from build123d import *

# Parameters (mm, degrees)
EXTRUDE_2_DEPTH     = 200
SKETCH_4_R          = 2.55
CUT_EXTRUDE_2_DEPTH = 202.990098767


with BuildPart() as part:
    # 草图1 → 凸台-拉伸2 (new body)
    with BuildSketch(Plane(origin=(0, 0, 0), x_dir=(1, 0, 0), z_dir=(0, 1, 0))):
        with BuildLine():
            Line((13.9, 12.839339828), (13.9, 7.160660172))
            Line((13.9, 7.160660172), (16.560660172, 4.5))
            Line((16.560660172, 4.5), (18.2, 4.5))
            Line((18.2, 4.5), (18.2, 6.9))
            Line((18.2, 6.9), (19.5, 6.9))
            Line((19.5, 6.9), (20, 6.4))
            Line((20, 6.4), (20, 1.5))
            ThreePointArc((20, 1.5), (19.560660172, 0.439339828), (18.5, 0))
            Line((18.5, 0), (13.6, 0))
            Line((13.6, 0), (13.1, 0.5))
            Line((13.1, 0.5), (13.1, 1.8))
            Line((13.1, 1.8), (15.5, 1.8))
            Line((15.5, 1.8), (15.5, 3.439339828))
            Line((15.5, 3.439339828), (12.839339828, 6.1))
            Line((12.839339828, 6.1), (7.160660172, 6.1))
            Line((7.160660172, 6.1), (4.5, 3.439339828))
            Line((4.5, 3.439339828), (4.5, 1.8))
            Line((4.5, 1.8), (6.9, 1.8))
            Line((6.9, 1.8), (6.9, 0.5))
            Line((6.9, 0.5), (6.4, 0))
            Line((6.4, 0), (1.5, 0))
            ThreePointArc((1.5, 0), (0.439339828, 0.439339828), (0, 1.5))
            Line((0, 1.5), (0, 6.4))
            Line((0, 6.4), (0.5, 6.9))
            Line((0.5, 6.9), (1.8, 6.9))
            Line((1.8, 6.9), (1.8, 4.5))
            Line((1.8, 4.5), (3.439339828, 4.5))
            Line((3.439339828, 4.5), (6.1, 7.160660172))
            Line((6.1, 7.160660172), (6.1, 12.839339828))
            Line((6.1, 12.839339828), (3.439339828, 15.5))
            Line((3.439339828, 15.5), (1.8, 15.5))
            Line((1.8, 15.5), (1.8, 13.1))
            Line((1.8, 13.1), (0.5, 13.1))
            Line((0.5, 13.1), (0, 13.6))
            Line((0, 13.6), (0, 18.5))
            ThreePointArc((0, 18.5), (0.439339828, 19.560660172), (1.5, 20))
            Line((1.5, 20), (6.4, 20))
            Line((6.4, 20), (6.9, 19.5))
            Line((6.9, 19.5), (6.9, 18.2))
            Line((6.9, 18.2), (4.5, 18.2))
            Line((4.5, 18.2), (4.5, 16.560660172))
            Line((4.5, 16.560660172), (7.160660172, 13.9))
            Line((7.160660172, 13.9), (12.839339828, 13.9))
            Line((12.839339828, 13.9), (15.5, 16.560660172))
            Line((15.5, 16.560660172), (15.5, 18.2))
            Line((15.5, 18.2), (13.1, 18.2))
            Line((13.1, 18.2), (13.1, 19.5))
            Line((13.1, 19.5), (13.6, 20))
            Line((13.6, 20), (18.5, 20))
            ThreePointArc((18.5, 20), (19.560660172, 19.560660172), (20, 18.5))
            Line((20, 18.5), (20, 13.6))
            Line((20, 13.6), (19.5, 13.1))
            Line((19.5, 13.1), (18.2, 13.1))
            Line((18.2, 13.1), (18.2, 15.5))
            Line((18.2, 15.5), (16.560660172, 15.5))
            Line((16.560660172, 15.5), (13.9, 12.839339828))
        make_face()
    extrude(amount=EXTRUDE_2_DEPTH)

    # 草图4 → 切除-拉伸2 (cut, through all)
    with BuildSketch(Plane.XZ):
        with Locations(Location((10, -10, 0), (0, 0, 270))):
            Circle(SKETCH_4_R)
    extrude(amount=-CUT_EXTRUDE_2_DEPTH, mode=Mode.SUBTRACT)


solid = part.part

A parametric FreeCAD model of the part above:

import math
import FreeCAD as App
import Part
import Sketcher

doc = App.newDocument("Part")
body = doc.addObject("PartDesign::Body", "Body")

# Sketch on XZ plane
sketch1 = body.newObject("Sketcher::SketchObject", "Sketch")
sketch1.AttachmentSupport = (doc.getObject("XZ_Plane"), [""])
sketch1.MapMode = "FlatFace"
sketch1.addGeometry([
    Part.LineSegment(App.Vector(13.9, -7.16066, 0), App.Vector(13.9, -12.83934, 0)),  # 0
    Part.LineSegment(App.Vector(13.9, -12.83934, 0), App.Vector(16.56066, -15.5, 0)),  # 1
    Part.LineSegment(App.Vector(16.56066, -15.5, 0), App.Vector(18.2, -15.5, 0)),  # 2
    Part.LineSegment(App.Vector(18.2, -15.5, 0), App.Vector(18.2, -13.1, 0)),  # 3
    Part.LineSegment(App.Vector(18.2, -13.1, 0), App.Vector(19.5, -13.1, 0)),  # 4
    Part.LineSegment(App.Vector(19.5, -13.1, 0), App.Vector(20, -13.6, 0)),  # 5
    Part.LineSegment(App.Vector(20, -13.6, 0), App.Vector(20, -18.5, 0)),  # 6
    Part.ArcOfCircle(Part.Circle(App.Vector(18.5, -18.5, 0), App.Vector(0, 0, 1), 1.5), math.radians(-90), math.radians(0)),  # 7
    Part.LineSegment(App.Vector(18.5, -20, 0), App.Vector(13.6, -20, 0)),  # 8
    Part.LineSegment(App.Vector(13.6, -20, 0), App.Vector(13.1, -19.5, 0)),  # 9
    Part.LineSegment(App.Vector(13.1, -19.5, 0), App.Vector(13.1, -18.2, 0)),  # 10
    Part.LineSegment(App.Vector(13.1, -18.2, 0), App.Vector(15.5, -18.2, 0)),  # 11
    Part.LineSegment(App.Vector(15.5, -18.2, 0), App.Vector(15.5, -16.56066, 0)),  # 12
    Part.LineSegment(App.Vector(15.5, -16.56066, 0), App.Vector(12.83934, -13.9, 0)),  # 13
    Part.LineSegment(App.Vector(12.83934, -13.9, 0), App.Vector(7.16066, -13.9, 0)),  # 14
    Part.LineSegment(App.Vector(7.16066, -13.9, 0), App.Vector(4.5, -16.56066, 0)),  # 15
    Part.LineSegment(App.Vector(4.5, -16.56066, 0), App.Vector(4.5, -18.2, 0)),  # 16
    Part.LineSegment(App.Vector(4.5, -18.2, 0), App.Vector(6.9, -18.2, 0)),  # 17
    Part.LineSegment(App.Vector(6.9, -18.2, 0), App.Vector(6.9, -19.5, 0)),  # 18
    Part.LineSegment(App.Vector(6.9, -19.5, 0), App.Vector(6.4, -20, 0)),  # 19
    Part.LineSegment(App.Vector(6.4, -20, 0), App.Vector(1.5, -20, 0)),  # 20
    Part.ArcOfCircle(Part.Circle(App.Vector(1.5, -18.5, 0), App.Vector(0, 0, 1), 1.5), math.radians(180), math.radians(270)),  # 21
    Part.LineSegment(App.Vector(0, -18.5, 0), App.Vector(0, -13.6, 0)),  # 22
    Part.LineSegment(App.Vector(0, -13.6, 0), App.Vector(0.5, -13.1, 0)),  # 23
    Part.LineSegment(App.Vector(0.5, -13.1, 0), App.Vector(1.8, -13.1, 0)),  # 24
    Part.LineSegment(App.Vector(1.8, -13.1, 0), App.Vector(1.8, -15.5, 0)),  # 25
    Part.LineSegment(App.Vector(1.8, -15.5, 0), App.Vector(3.43934, -15.5, 0)),  # 26
    Part.LineSegment(App.Vector(3.43934, -15.5, 0), App.Vector(6.1, -12.83934, 0)),  # 27
    Part.LineSegment(App.Vector(6.1, -12.83934, 0), App.Vector(6.1, -7.16066, 0)),  # 28
    Part.LineSegment(App.Vector(6.1, -7.16066, 0), App.Vector(3.43934, -4.5, 0)),  # 29
    Part.LineSegment(App.Vector(3.43934, -4.5, 0), App.Vector(1.8, -4.5, 0)),  # 30
    Part.LineSegment(App.Vector(1.8, -4.5, 0), App.Vector(1.8, -6.9, 0)),  # 31
    Part.LineSegment(App.Vector(1.8, -6.9, 0), App.Vector(0.5, -6.9, 0)),  # 32
    Part.LineSegment(App.Vector(0.5, -6.9, 0), App.Vector(0, -6.4, 0)),  # 33
    Part.LineSegment(App.Vector(0, -6.4, 0), App.Vector(0, -1.5, 0)),  # 34
    Part.ArcOfCircle(Part.Circle(App.Vector(1.5, -1.5, 0), App.Vector(0, 0, 1), 1.5), math.radians(90), math.radians(180)),  # 35
    Part.LineSegment(App.Vector(1.5, 0, 0), App.Vector(6.4, 0, 0)),  # 36
    Part.LineSegment(App.Vector(6.4, 0, 0), App.Vector(6.9, -0.5, 0)),  # 37
    Part.LineSegment(App.Vector(6.9, -0.5, 0), App.Vector(6.9, -1.8, 0)),  # 38
    Part.LineSegment(App.Vector(6.9, -1.8, 0), App.Vector(4.5, -1.8, 0)),  # 39
    Part.LineSegment(App.Vector(4.5, -1.8, 0), App.Vector(4.5, -3.43934, 0)),  # 40
    Part.LineSegment(App.Vector(4.5, -3.43934, 0), App.Vector(7.16066, -6.1, 0)),  # 41
    Part.LineSegment(App.Vector(7.16066, -6.1, 0), App.Vector(12.83934, -6.1, 0)),  # 42
    Part.LineSegment(App.Vector(12.83934, -6.1, 0), App.Vector(15.5, -3.43934, 0)),  # 43
    Part.LineSegment(App.Vector(15.5, -3.43934, 0), App.Vector(15.5, -1.8, 0)),  # 44
    Part.LineSegment(App.Vector(15.5, -1.8, 0), App.Vector(13.1, -1.8, 0)),  # 45
    Part.LineSegment(App.Vector(13.1, -1.8, 0), App.Vector(13.1, -0.5, 0)),  # 46
    Part.LineSegment(App.Vector(13.1, -0.5, 0), App.Vector(13.6, 0, 0)),  # 47
    Part.LineSegment(App.Vector(13.6, 0, 0), App.Vector(18.5, 0, 0)),  # 48
    Part.ArcOfCircle(Part.Circle(App.Vector(18.5, -1.5, 0), App.Vector(0, 0, 1), 1.5), math.radians(0), math.radians(90)),  # 49
    Part.LineSegment(App.Vector(20, -1.5, 0), App.Vector(20, -6.4, 0)),  # 50
    Part.LineSegment(App.Vector(20, -6.4, 0), App.Vector(19.5, -6.9, 0)),  # 51
    Part.LineSegment(App.Vector(19.5, -6.9, 0), App.Vector(18.2, -6.9, 0)),  # 52
    Part.LineSegment(App.Vector(18.2, -6.9, 0), App.Vector(18.2, -4.5, 0)),  # 53
    Part.LineSegment(App.Vector(18.2, -4.5, 0), App.Vector(16.56066, -4.5, 0)),  # 54
    Part.LineSegment(App.Vector(16.56066, -4.5, 0), App.Vector(13.9, -7.16066, 0)),  # 55
], False)
sketch1.addConstraint([
    Sketcher.Constraint("Coincident", 0, 2, 1, 1),
    Sketcher.Constraint("Coincident", 1, 2, 2, 1),
    Sketcher.Constraint("Coincident", 2, 2, 3, 1),
    Sketcher.Constraint("Coincident", 3, 2, 4, 1),
    Sketcher.Constraint("Coincident", 4, 2, 5, 1),
    Sketcher.Constraint("Coincident", 5, 2, 6, 1),
    Sketcher.Constraint("Tangent", 6, 2, 7, 2),
    Sketcher.Constraint("Tangent", 7, 1, 8, 1),
    Sketcher.Constraint("Coincident", 8, 2, 9, 1),
    Sketcher.Constraint("Coincident", 9, 2, 10, 1),
    Sketcher.Constraint("Coincident", 10, 2, 11, 1),
    Sketcher.Constraint("Coincident", 11, 2, 12, 1),
    Sketcher.Constraint("Coincident", 12, 2, 13, 1),
    Sketcher.Constraint("Coincident", 13, 2, 14, 1),
    Sketcher.Constraint("Coincident", 14, 2, 15, 1),
    Sketcher.Constraint("Coincident", 15, 2, 16, 1),
    Sketcher.Constraint("Coincident", 16, 2, 17, 1),
    Sketcher.Constraint("Coincident", 17, 2, 18, 1),
    Sketcher.Constraint("Coincident", 18, 2, 19, 1),
    Sketcher.Constraint("Coincident", 19, 2, 20, 1),
    Sketcher.Constraint("Tangent", 20, 2, 21, 2),
    Sketcher.Constraint("Tangent", 21, 1, 22, 1),
    Sketcher.Constraint("Coincident", 22, 2, 23, 1),
    Sketcher.Constraint("Coincident", 23, 2, 24, 1),
    Sketcher.Constraint("Coincident", 24, 2, 25, 1),
    Sketcher.Constraint("Coincident", 25, 2, 26, 1),
    Sketcher.Constraint("Coincident", 26, 2, 27, 1),
    Sketcher.Constraint("Coincident", 27, 2, 28, 1),
    Sketcher.Constraint("Coincident", 28, 2, 29, 1),
    Sketcher.Constraint("Coincident", 29, 2, 30, 1),
    Sketcher.Constraint("Coincident", 30, 2, 31, 1),
    Sketcher.Constraint("Coincident", 31, 2, 32, 1),
    Sketcher.Constraint("Coincident", 32, 2, 33, 1),
    Sketcher.Constraint("Coincident", 33, 2, 34, 1),
    Sketcher.Constraint("Tangent", 34, 2, 35, 2),
    Sketcher.Constraint("Tangent", 35, 1, 36, 1),
    Sketcher.Constraint("Coincident", 36, 2, 37, 1),
    Sketcher.Constraint("Coincident", 37, 2, 38, 1),
    Sketcher.Constraint("Coincident", 38, 2, 39, 1),
    Sketcher.Constraint("Coincident", 39, 2, 40, 1),
    Sketcher.Constraint("Coincident", 40, 2, 41, 1),
    Sketcher.Constraint("Coincident", 41, 2, 42, 1),
    Sketcher.Constraint("Coincident", 42, 2, 43, 1),
    Sketcher.Constraint("Coincident", 43, 2, 44, 1),
    Sketcher.Constraint("Coincident", 44, 2, 45, 1),
    Sketcher.Constraint("Coincident", 45, 2, 46, 1),
    Sketcher.Constraint("Coincident", 46, 2, 47, 1),
    Sketcher.Constraint("Coincident", 47, 2, 48, 1),
    Sketcher.Constraint("Tangent", 48, 2, 49, 2),
    Sketcher.Constraint("Tangent", 49, 1, 50, 1),
    Sketcher.Constraint("Coincident", 50, 2, 51, 1),
    Sketcher.Constraint("Coincident", 51, 2, 52, 1),
    Sketcher.Constraint("Coincident", 52, 2, 53, 1),
    Sketcher.Constraint("Coincident", 53, 2, 54, 1),
    Sketcher.Constraint("Coincident", 54, 2, 55, 1),
    Sketcher.Constraint("Coincident", 55, 2, 0, 1),
    Sketcher.Constraint("Vertical", 0),
    Sketcher.Constraint("Horizontal", 2),
    Sketcher.Constraint("Vertical", 3),
    Sketcher.Constraint("Horizontal", 4),
    Sketcher.Constraint("Vertical", 6),
    Sketcher.Constraint("Horizontal", 8),
    Sketcher.Constraint("Vertical", 10),
    Sketcher.Constraint("Horizontal", 11),
    Sketcher.Constraint("Vertical", 12),
    Sketcher.Constraint("Horizontal", 14),
    Sketcher.Constraint("Vertical", 16),
    Sketcher.Constraint("Horizontal", 17),
    Sketcher.Constraint("Vertical", 18),
    Sketcher.Constraint("Horizontal", 20),
    Sketcher.Constraint("Vertical", 22),
    Sketcher.Constraint("Horizontal", 24),
    Sketcher.Constraint("Vertical", 25),
    Sketcher.Constraint("Horizontal", 26),
    Sketcher.Constraint("Vertical", 28),
    Sketcher.Constraint("Horizontal", 30),
    Sketcher.Constraint("Vertical", 31),
    Sketcher.Constraint("Horizontal", 32),
    Sketcher.Constraint("Vertical", 34),
    Sketcher.Constraint("Horizontal", 36),
    Sketcher.Constraint("Vertical", 38),
    Sketcher.Constraint("Horizontal", 39),
    Sketcher.Constraint("Vertical", 40),
    Sketcher.Constraint("Horizontal", 42),
    Sketcher.Constraint("Vertical", 44),
    Sketcher.Constraint("Horizontal", 45),
    Sketcher.Constraint("Vertical", 46),
    Sketcher.Constraint("Horizontal", 48),
    Sketcher.Constraint("Vertical", 50),
    Sketcher.Constraint("Horizontal", 52),
    Sketcher.Constraint("Vertical", 53),
    Sketcher.Constraint("Horizontal", 54),
    Sketcher.Constraint("Equal", 7, 21),
    Sketcher.Constraint("Equal", 21, 35),
    Sketcher.Constraint("Equal", 35, 49),
    Sketcher.Constraint("PointOnObject", 21, 1, -2),
    Sketcher.Constraint("PointOnObject", 33, 2, -2),
    Sketcher.Constraint("PointOnObject", 35, 1, -1),
    Sketcher.Constraint("PointOnObject", 47, 2, -1),
    Sketcher.Constraint("Parallel", 1, 5),
    Sketcher.Constraint("Parallel", 5, 9),
    Sketcher.Constraint("Parallel", 9, 13),
    Sketcher.Constraint("Perpendicular", 13, 15),
    Sketcher.Constraint("Parallel", 15, 19),
    Sketcher.Constraint("Parallel", 19, 23),
    Sketcher.Constraint("Parallel", 23, 27),
    Sketcher.Constraint("Perpendicular", 27, 29),
    Sketcher.Constraint("Parallel", 29, 33),
    Sketcher.Constraint("Parallel", 33, 37),
    Sketcher.Constraint("Parallel", 37, 41),
    Sketcher.Constraint("Perpendicular", 41, 43),
    Sketcher.Constraint("Parallel", 43, 47),
    Sketcher.Constraint("Parallel", 47, 51),
    Sketcher.Constraint("Parallel", 51, 55),
    Sketcher.Constraint("Horizontal", 7, 3, 21, 3),
    Sketcher.Constraint("Horizontal", 12, 2, 15, 2),
    Sketcher.Constraint("Horizontal", 11, 2, 16, 2),
    Sketcher.Constraint("Horizontal", 9, 2, 18, 2),
    Sketcher.Constraint("Horizontal", 5, 2, 22, 2),
    Sketcher.Constraint("Horizontal", 4, 2, 23, 2),
    Sketcher.Constraint("Horizontal", 2, 2, 25, 2),
    Sketcher.Constraint("Horizontal", 0, 2, 27, 2),
    Sketcher.Constraint("Horizontal", 40, 2, 43, 2),
    Sketcher.Constraint("Horizontal", 39, 2, 44, 2),
    Sketcher.Constraint("Horizontal", 37, 2, 46, 2),
    Sketcher.Constraint("Horizontal", 33, 2, 50, 2),
    Sketcher.Constraint("Horizontal", 32, 2, 51, 2),
    Sketcher.Constraint("Horizontal", 30, 2, 53, 2),
    Sketcher.Constraint("Horizontal", 28, 2, 55, 2),
    Sketcher.Constraint("Vertical", 7, 3, 49, 3),
    Sketcher.Constraint("Vertical", 26, 2, 29, 2),
    Sketcher.Constraint("Vertical", 25, 2, 30, 2),
    Sketcher.Constraint("Vertical", 23, 2, 32, 2),
    Sketcher.Constraint("Vertical", 19, 2, 36, 2),
    Sketcher.Constraint("Vertical", 18, 2, 37, 2),
    Sketcher.Constraint("Vertical", 16, 2, 39, 2),
    Sketcher.Constraint("Vertical", 14, 2, 41, 2),
    Sketcher.Constraint("Vertical", 13, 2, 42, 2),
    Sketcher.Constraint("Vertical", 12, 2, 43, 2),
    Sketcher.Constraint("Vertical", 10, 2, 45, 2),
    Sketcher.Constraint("Vertical", 3, 2, 52, 2),
    Sketcher.Constraint("Equal", 11, 17),
    Sketcher.Constraint("Equal", 8, 20),
    Sketcher.Constraint("Equal", 4, 24),
    Sketcher.Constraint("Equal", 2, 26),
    Sketcher.Constraint("Equal", 42, 0),
    Sketcher.Constraint("Equal", 45, 3),
    Sketcher.Constraint("Equal", 48, 6),
    Sketcher.Constraint("Equal", 52, 10),
    Sketcher.Constraint("Equal", 54, 12),
    Sketcher.Constraint("Equal", 25, 31),
    Sketcher.Constraint("Equal", 22, 34),
    Sketcher.Constraint("Equal", 18, 38),
    Sketcher.Constraint("Equal", 16, 40),
    Sketcher.Constraint("Equal", 5, 9),
    Sketcher.Constraint("Equal", 1, 13),
    Sketcher.Constraint("Radius", 7, 1.5),
    Sketcher.Constraint("DistanceX", 4, 1, 4, 2, 1.3),
    Sketcher.Constraint("DistanceX", 8, 2, 8, 1, 4.9),
    Sketcher.Constraint("DistanceX", 11, 1, 11, 2, 2.4),
    Sketcher.Constraint("DistanceX", -1, 1, 5, 2, 20.0),
    Sketcher.Constraint("DistanceY", 7, 3, 1, 2, 3.0),
    Sketcher.Constraint("DistanceX", -1, 1, 0, 2, 13.9),
    Sketcher.Constraint("DistanceX", 2, 1, 2, 2, 1.63934),
])
pad1 = body.newObject("PartDesign::Pad", "Pad")
pad1.Profile = sketch1
pad1.Length = 200
pad1.Reversed = True

# Sketch on XZ plane
sketch2 = body.newObject("Sketcher::SketchObject", "Sketch001")
sketch2.AttachmentSupport = (doc.getObject("XZ_Plane"), [""])
sketch2.MapMode = "FlatFace"
sketch2.addGeometry(Part.Circle(App.Vector(10, -10, 0), App.Vector(0, 0, 1), 2.55), False)
sketch2.addConstraint([
    Sketcher.Constraint("Diameter", 0, 5.1),
    Sketcher.Constraint("DistanceX", -1, 1, 0, 3, 10.0),
    Sketcher.Constraint("DistanceY", 0, 3, -1, 1, 10.0),
])
pocket1 = body.newObject("PartDesign::Pocket", "Pocket")
pocket1.Profile = sketch2
pocket1.Type = "ThroughAll"

doc.recompute()
